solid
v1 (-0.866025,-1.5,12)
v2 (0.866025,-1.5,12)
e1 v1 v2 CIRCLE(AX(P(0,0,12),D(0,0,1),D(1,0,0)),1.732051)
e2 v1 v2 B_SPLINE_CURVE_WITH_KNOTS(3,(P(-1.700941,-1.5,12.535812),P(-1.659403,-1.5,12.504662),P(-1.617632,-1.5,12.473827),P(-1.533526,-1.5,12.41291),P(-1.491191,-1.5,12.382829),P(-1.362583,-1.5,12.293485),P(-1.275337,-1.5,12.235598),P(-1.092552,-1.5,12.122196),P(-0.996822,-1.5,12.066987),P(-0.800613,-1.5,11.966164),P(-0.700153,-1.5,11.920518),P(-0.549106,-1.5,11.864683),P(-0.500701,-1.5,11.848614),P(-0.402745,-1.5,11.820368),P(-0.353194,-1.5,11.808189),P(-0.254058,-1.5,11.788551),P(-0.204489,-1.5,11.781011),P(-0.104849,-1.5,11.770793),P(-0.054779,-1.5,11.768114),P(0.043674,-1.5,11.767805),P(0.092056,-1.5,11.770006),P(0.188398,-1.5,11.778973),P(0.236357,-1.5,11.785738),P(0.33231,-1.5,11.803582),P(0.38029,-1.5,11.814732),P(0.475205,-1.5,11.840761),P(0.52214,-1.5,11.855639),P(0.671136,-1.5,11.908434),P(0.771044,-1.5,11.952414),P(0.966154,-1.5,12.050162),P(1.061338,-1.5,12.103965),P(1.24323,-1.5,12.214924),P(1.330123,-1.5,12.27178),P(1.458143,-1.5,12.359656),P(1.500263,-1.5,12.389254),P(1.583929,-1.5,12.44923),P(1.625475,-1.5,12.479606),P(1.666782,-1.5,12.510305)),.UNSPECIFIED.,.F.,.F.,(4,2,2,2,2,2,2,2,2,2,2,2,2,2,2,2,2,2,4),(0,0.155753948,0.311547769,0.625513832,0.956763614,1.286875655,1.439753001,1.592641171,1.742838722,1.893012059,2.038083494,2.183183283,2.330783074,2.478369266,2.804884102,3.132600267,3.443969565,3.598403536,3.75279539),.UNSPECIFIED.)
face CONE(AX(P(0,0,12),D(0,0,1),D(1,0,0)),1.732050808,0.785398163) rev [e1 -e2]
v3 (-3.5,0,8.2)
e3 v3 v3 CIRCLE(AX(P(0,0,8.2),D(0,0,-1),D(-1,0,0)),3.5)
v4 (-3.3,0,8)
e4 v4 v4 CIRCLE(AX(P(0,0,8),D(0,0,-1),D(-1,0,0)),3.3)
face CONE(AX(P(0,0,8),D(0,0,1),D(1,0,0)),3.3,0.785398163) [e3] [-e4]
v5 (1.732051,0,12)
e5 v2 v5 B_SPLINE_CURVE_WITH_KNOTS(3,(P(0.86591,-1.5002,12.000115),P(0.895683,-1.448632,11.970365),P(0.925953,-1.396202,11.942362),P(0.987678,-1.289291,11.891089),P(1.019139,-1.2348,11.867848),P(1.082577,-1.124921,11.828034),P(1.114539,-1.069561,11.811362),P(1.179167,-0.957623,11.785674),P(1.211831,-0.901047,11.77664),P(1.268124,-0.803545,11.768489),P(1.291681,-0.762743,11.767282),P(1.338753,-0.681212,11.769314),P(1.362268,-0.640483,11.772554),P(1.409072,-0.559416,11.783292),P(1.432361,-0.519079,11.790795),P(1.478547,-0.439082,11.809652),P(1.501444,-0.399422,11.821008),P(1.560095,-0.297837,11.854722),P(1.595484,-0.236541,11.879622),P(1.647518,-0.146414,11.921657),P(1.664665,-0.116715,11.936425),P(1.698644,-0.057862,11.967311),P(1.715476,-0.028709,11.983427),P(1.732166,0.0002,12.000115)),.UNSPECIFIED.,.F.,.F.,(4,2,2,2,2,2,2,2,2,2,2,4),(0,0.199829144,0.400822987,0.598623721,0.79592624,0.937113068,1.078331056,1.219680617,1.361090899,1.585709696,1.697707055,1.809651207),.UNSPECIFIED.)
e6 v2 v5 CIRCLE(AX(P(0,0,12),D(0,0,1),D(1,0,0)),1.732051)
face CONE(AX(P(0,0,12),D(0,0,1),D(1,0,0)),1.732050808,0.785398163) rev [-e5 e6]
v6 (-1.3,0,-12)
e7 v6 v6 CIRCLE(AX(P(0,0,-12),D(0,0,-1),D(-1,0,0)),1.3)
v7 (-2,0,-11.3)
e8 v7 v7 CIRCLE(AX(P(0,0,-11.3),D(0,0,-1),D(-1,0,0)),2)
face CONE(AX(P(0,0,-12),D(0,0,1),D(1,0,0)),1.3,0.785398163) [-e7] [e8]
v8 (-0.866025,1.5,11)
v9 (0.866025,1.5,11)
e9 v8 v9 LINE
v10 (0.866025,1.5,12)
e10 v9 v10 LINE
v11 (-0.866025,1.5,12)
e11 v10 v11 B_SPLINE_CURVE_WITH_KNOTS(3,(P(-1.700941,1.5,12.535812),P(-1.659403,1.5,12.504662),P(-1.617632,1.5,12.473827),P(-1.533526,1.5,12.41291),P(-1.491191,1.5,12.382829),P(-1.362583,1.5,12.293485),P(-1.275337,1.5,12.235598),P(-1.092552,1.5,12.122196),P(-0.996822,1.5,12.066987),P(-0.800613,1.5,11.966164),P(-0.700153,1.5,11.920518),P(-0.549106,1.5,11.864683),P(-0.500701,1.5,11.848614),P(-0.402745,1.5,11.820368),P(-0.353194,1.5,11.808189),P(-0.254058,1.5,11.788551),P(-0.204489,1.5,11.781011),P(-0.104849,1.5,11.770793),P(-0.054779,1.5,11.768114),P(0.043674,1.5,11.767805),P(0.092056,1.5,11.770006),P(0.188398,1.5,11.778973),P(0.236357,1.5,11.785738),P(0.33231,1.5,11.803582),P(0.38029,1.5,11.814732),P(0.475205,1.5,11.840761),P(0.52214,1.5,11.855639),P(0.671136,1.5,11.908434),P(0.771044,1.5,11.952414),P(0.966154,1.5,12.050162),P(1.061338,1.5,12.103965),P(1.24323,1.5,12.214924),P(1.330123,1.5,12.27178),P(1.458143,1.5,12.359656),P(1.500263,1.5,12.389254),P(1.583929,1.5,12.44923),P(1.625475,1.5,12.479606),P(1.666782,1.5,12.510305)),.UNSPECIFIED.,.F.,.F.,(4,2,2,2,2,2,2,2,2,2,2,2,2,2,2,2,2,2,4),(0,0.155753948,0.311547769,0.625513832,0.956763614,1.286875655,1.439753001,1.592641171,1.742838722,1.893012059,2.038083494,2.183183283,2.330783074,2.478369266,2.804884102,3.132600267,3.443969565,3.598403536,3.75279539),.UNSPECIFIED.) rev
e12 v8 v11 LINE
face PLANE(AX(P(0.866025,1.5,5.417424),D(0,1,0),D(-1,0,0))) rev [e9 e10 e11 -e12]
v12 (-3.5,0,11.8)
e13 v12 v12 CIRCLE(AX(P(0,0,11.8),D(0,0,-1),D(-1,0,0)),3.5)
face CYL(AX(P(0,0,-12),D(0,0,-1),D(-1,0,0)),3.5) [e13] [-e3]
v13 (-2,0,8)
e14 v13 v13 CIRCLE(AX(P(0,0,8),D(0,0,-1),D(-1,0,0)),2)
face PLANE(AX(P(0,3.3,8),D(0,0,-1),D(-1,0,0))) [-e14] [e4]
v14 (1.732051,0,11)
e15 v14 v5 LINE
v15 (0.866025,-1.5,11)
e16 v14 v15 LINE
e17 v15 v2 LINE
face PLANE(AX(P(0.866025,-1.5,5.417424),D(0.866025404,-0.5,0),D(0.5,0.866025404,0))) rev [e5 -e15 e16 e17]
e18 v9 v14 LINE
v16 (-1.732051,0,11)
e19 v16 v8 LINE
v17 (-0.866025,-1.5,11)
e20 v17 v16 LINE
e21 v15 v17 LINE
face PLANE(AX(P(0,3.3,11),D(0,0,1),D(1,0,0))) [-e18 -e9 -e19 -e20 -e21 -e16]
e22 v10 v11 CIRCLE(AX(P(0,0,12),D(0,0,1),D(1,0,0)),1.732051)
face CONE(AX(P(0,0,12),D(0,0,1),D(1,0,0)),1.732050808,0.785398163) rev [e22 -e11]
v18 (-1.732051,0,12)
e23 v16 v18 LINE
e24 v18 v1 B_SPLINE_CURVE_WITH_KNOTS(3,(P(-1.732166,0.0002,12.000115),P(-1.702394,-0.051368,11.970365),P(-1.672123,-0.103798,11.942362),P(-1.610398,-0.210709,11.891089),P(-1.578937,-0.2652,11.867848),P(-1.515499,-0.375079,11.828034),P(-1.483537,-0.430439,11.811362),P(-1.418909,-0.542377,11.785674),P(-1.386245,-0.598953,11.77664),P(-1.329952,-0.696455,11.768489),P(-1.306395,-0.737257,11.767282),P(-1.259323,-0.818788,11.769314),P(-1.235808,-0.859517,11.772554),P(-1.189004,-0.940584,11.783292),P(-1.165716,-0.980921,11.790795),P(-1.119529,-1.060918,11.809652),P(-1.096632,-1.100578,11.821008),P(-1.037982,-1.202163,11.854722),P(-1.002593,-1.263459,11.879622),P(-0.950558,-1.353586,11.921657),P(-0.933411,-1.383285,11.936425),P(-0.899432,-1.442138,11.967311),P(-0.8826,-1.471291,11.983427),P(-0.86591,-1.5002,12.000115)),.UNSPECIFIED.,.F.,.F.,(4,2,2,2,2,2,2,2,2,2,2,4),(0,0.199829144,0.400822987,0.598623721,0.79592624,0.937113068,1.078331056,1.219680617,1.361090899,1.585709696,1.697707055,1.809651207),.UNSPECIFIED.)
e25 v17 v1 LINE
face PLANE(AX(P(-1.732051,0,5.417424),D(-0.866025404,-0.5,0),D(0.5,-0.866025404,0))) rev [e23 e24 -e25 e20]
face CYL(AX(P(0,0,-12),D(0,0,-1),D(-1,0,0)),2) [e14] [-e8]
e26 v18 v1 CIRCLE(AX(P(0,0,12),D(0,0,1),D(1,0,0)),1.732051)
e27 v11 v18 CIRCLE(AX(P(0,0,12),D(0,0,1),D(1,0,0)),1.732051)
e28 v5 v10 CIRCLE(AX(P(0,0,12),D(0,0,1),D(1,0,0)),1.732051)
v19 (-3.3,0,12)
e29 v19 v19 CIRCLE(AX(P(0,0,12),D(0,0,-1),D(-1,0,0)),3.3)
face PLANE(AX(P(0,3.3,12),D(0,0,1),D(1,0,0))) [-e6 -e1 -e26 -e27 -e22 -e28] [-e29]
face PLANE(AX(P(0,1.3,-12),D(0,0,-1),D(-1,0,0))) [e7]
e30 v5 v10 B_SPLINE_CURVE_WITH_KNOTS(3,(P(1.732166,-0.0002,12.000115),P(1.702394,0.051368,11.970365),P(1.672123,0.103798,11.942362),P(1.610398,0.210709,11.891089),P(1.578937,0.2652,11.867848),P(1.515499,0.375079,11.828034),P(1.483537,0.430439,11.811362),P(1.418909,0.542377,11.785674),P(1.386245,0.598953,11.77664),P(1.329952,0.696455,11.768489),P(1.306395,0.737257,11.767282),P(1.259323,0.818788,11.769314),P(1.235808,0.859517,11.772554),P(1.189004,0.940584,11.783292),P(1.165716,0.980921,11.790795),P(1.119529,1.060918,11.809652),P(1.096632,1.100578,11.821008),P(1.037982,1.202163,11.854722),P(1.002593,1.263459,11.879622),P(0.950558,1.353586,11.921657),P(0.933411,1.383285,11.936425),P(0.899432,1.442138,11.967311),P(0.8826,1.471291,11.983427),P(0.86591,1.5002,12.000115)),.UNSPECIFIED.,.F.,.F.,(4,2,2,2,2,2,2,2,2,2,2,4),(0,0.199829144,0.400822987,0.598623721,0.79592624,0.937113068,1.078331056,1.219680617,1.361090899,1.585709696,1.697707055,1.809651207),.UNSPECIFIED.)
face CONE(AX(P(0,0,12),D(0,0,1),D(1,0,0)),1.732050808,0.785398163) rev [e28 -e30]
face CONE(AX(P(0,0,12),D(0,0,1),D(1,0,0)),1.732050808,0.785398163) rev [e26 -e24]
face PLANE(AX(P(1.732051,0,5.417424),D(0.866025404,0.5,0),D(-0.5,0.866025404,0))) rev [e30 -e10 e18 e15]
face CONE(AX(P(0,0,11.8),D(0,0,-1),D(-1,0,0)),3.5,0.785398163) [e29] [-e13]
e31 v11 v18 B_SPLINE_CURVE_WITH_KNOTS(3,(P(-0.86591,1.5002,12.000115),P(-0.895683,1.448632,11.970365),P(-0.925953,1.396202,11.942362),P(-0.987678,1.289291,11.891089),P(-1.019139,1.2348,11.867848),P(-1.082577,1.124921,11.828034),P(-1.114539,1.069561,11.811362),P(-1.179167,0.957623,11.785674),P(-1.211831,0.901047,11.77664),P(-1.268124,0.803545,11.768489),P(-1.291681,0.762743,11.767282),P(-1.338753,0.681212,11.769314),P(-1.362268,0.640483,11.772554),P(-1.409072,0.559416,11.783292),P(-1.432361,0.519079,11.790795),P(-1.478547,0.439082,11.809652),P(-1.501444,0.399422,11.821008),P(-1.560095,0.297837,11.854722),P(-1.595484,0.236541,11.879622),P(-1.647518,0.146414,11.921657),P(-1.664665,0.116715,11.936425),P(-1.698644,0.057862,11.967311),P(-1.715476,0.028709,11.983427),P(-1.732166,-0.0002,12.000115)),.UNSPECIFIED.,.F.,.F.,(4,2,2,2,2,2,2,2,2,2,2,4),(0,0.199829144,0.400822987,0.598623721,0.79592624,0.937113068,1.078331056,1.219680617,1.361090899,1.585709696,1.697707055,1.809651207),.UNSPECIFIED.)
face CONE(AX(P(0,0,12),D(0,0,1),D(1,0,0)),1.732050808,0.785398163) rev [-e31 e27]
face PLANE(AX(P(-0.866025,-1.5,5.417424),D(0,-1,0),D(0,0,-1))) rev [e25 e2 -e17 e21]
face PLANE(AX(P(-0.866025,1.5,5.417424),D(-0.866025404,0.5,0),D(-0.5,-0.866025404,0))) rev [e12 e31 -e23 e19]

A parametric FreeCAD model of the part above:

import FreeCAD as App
import Part
import Sketcher
from FreeCAD import Vector
Q = App.Units.Quantity


def faces_at(feature, points):
    """Names of the faces that lie closest to the given points."""
    faces = feature.Shape.Faces
    near = lambda p: min(range(len(faces)), key=lambda i: faces[i].distToShape(Part.Vertex(*p))[0])
    return sorted({f"Face{near(p) + 1}" for p in points})

doc = App.newDocument("Part")
params = doc.addObject("Spreadsheet::Sheet", "Params")
for row, (alias, value) in enumerate([
    ("sketch1_height", "24 mm"),
    ("sketch1_width", "3.3 mm"),
    ("sketch1_width2", "1.3 mm"),
    ("sketch1_height2", "3.6 mm"),
    ("sketch1_height3", "19.3 mm"),
    ("revolution_angle", "360 deg"),
    ("pocket1_length", "1 mm"),
    ("pad1_length", "0.5 mm"),
    ("draft_angle", "45 deg"),
], start=1):
    params.set(f"A{row}", alias)
    params.set(f"B{row}", "=" + value)
    params.setAlias(f"B{row}", alias)

body = doc.addObject("PartDesign::Body", "Body")

# Sketch on YZ plane
sketch1 = body.newObject("Sketcher::SketchObject", "Sketch")
sketch1.AttachmentSupport = (doc.getObject("YZ_Plane"), [""])
sketch1.MapMode = "FlatFace"
sketch1.addGeometry([
    Part.LineSegment(Vector(3.5, 8.2, 0), Vector(3.5, 11.8, 0)),  # 0
    Part.LineSegment(Vector(3.5, 11.8, 0), Vector(3.3, 12, 0)),  # 1
    Part.LineSegment(Vector(3.3, 12, 0), Vector(0, 12, 0)),  # 2
    Part.LineSegment(Vector(0, 12, 0), Vector(0, -12, 0)),  # 3
    Part.LineSegment(Vector(0, -12, 0), Vector(1.3, -12, 0)),  # 4
    Part.LineSegment(Vector(1.3, -12, 0), Vector(2, -11.3, 0)),  # 5
    Part.LineSegment(Vector(2, -11.3, 0), Vector(2, 8, 0)),  # 6
    Part.LineSegment(Vector(2, 8, 0), Vector(3.3, 8, 0)),  # 7
    Part.LineSegment(Vector(3.3, 8, 0), Vector(3.5, 8.2, 0)),  # 8
], False)
sketch1.addConstraint([
    Sketcher.Constraint("Coincident", 0, 2, 1, 1),
    Sketcher.Constraint("Coincident", 1, 2, 2, 1),
    Sketcher.Constraint("Coincident", 2, 2, 3, 1),
    Sketcher.Constraint("Coincident", 3, 2, 4, 1),
    Sketcher.Constraint("Coincident", 4, 2, 5, 1),
    Sketcher.Constraint("Coincident", 5, 2, 6, 1),
    Sketcher.Constraint("Coincident", 6, 2, 7, 1),
    Sketcher.Constraint("Coincident", 7, 2, 8, 1),
    Sketcher.Constraint("Coincident", 8, 2, 0, 1),
    Sketcher.Constraint("Vertical", 0),
    Sketcher.Constraint("Horizontal", 2),
    Sketcher.Constraint("Vertical", 3),
    Sketcher.Constraint("Horizontal", 4),
    Sketcher.Constraint("Vertical", 6),
    Sketcher.Constraint("Horizontal", 7),
    Sketcher.Constraint("Symmetric", 2, 2, 3, 2, -1, 1),
    Sketcher.Constraint("Perpendicular", 1, 5),
    Sketcher.Constraint("Parallel", 5, 8),
    Sketcher.Constraint("Vertical", 1, 2, 7, 2),
    Sketcher.Constraint("Equal", 4, 7),
    Sketcher.Constraint("Equal", 1, 8),
    Sketcher.Constraint("DistanceY", 3, 2, 3, 1, Q("24 mm")),
    Sketcher.Constraint("DistanceX", 2, 2, 2, 1, Q("3.3 mm")),
    Sketcher.Constraint("DistanceX", 4, 1, 4, 2, Q("1.3 mm")),
    Sketcher.Constraint("DistanceY", 0, 1, 0, 2, Q("3.6 mm")),
    Sketcher.Constraint("DistanceY", 6, 1, 6, 2, Q("19.3 mm")),
])
sketch1.setExpression("Constraints[21]", "Params.sketch1_height")
sketch1.setExpression("Constraints[22]", "Params.sketch1_width")
sketch1.setExpression("Constraints[23]", "Params.sketch1_width2")
sketch1.setExpression("Constraints[24]", "Params.sketch1_height2")
sketch1.setExpression("Constraints[25]", "Params.sketch1_height3")
revolution = body.newObject("PartDesign::Revolution", "Revolution")
revolution.Profile = sketch1
revolution.ReferenceAxis = (sketch1, ["V_Axis"])
revolution.setExpression("Angle", "Params.revolution_angle")

# Sketch on XY plane
sketch2 = body.newObject("Sketcher::SketchObject", "Sketch001")
sketch2.AttachmentSupport = (doc.getObject("XY_Plane"), [""])
sketch2.MapMode = "FlatFace"
sketch2.AttachmentOffset = App.Placement(Vector(0, 0, 12), App.Rotation())
sketch2.addGeometry([
    Part.LineSegment(Vector(0.866025, 1.5, 0), Vector(-0.866025, 1.5, 0)),  # 0
    Part.LineSegment(Vector(-0.866025, 1.5, 0), Vector(-1.732051, 0, 0)),  # 1
    Part.LineSegment(Vector(-1.732051, 0, 0), Vector(-0.866025, -1.5, 0)),  # 2
    Part.LineSegment(Vector(-0.866025, -1.5, 0), Vector(0.866025, -1.5, 0)),  # 3
    Part.LineSegment(Vector(0.866025, -1.5, 0), Vector(1.732051, 0, 0)),  # 4
    Part.LineSegment(Vector(1.732051, 0, 0), Vector(0.866025, 1.5, 0)),  # 5
], False)
sketch2.addConstraint([
    Sketcher.Constraint("Coincident", 0, 2, 1, 1),
    Sketcher.Constraint("Coincident", 1, 2, 2, 1),
    Sketcher.Constraint("Coincident", 2, 2, 3, 1),
    Sketcher.Constraint("Coincident", 3, 2, 4, 1),
    Sketcher.Constraint("Coincident", 4, 2, 5, 1),
    Sketcher.Constraint("Coincident", 5, 2, 0, 1),
    Sketcher.Constraint("Horizontal", 0),
    Sketcher.Constraint("Horizontal", 3),
    Sketcher.Constraint("Symmetric", 0, 2, 3, 2, -1, 1),
    Sketcher.Constraint("Symmetric", 1, 2, 4, 2, -1, 1),
    Sketcher.Constraint("PointOnObject", 1, 2, -1),
    Sketcher.Constraint("Parallel", 2, 5),
    Sketcher.Constraint("Vertical", 0, 2, 2, 2),
    Sketcher.Constraint("Angle", 1, Q("-120 deg")),
    Sketcher.Constraint("DistanceY", 2, 2, 0, 2, Q("3 mm")),
    Sketcher.Constraint("DistanceX", 0, 2, 0, 1, Q("1.732051 mm")),
])
pocket1 = body.newObject("PartDesign::Pocket", "Pocket")
pocket1.Profile = sketch2
pocket1.setExpression("Length", "Params.pocket1_length")
body2 = doc.addObject("PartDesign::Body", "Body001")

# Sketch on XY plane
sketch3 = body2.newObject("Sketcher::SketchObject", "Sketch002")
sketch3.AttachmentSupport = (doc.getObject("XY_Plane001"), [""])
sketch3.MapMode = "FlatFace"
sketch3.AttachmentOffset = App.Placement(Vector(0, 0, 12), App.Rotation())
sketch3.addGeometry(Part.Circle(Vector(0, 0, 0), Vector(0, 0, 1), 1.732051), False)
sketch3.addConstraint([
    Sketcher.Constraint("Coincident", 0, 3, -1, 1),
    Sketcher.Constraint("Diameter", 0, Q("3.464102 mm")),
])
pad1 = body2.newObject("PartDesign::Pad", "Pad")
pad1.Profile = sketch3
pad1.setExpression("Length", "Params.pad1_length")
pad1.Reversed = True
doc.recompute()

datumplane = body2.newObject("PartDesign::Plane", "DatumPlane")
datumplane.AttachmentSupport = (doc.getObject("XY_Plane001"), [""])
datumplane.MapMode = "FlatFace"
datumplane.AttachmentOffset = App.Placement(Vector(0, 0, 12), App.Rotation())
draft = body2.newObject("PartDesign::Draft", "Draft")
draft.Base = (pad1, faces_at(pad1, [(-1.732, 0, 11.75)]))
draft.NeutralPlane = (datumplane, [""])
draft.setExpression("Angle", "Params.draft_angle")
draft.Reversed = True
doc.recompute()

boolean = body.newObject("PartDesign::Boolean", "Boolean")
boolean.Type = "Cut"
boolean.addObjects([body2])

doc.recompute()
